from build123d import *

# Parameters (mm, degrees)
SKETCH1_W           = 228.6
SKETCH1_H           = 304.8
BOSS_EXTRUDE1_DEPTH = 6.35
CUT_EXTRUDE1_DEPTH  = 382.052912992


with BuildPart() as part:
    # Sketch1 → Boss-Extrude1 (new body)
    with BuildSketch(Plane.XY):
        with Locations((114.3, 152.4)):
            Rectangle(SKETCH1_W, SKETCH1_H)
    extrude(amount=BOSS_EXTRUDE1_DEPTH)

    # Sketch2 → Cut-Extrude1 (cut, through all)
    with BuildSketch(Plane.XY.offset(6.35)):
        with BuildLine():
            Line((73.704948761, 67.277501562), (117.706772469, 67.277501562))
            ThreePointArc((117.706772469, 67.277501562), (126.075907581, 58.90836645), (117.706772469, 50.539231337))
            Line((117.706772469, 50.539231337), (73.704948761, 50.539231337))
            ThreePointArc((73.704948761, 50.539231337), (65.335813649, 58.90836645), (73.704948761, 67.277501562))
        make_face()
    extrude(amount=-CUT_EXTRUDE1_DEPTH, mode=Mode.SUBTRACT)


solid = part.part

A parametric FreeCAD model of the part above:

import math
import FreeCAD as App
import Part
import Sketcher
from FreeCAD import Vector
Q = App.Units.Quantity


def add_polygon(sketch, points):
    """Adds a closed chain of lines whose ends are joined by coincident constraints."""
    first, n = sketch.GeometryCount, len(points)
    for a, b in zip(points, points[1:] + points[:1]):
        sketch.addGeometry(Part.LineSegment(App.Vector(*a, 0), App.Vector(*b, 0)), False)
    for i in range(n):
        sketch.addConstraint(Sketcher.Constraint("Coincident", first + i, 2, first + (i + 1) % n, 1))

doc = App.newDocument("Part")
body = doc.addObject("PartDesign::Body", "Body")

# Sketch on XY plane
sketch1 = body.newObject("Sketcher::SketchObject", "Sketch")
sketch1.AttachmentSupport = (doc.getObject("XY_Plane"), [""])
sketch1.MapMode = "FlatFace"
add_polygon(sketch1, [(0, 305), (0, 0), (229, 0), (229, 305)])  # lines 0-3
sketch1.addConstraint(Sketcher.Constraint("Vertical", 0))
sketch1.addConstraint(Sketcher.Constraint("Horizontal", 1))
sketch1.addConstraint(Sketcher.Constraint("Vertical", 2))
sketch1.addConstraint(Sketcher.Constraint("Horizontal", 3))
sketch1.addConstraint(Sketcher.Constraint("Coincident", 0, 2, -1, 1))
sketch1.addConstraint(Sketcher.Constraint("DistanceX", 1, 1, 1, 2, Q("9 in")))
sketch1.addConstraint(Sketcher.Constraint("DistanceY", 0, 2, 0, 1, Q("12 in")))
pad1 = body.newObject("PartDesign::Pad", "Pad")
pad1.Profile = sketch1
pad1.Length = Q("0.25 in")

# Sketch on XY plane
sketch2 = body.newObject("Sketcher::SketchObject", "Sketch001")
sketch2.AttachmentSupport = (doc.getObject("XY_Plane"), [""])
sketch2.MapMode = "FlatFace"
sketch2.AttachmentOffset = App.Placement(Vector(0, 0, 0.25 * 25.4), App.Rotation())
sketch2.addGeometry(Part.LineSegment(Vector(118, 67, 0), Vector(74, 67, 0)), False)
sketch2.addGeometry(Part.ArcOfCircle(Part.Circle(Vector(74, 59, 0), Vector(0, 0, 1), 8), math.radians(90), math.radians(270)), False)
sketch2.addGeometry(Part.LineSegment(Vector(74, 51, 0), Vector(118, 51, 0)), False)
sketch2.addGeometry(Part.ArcOfCircle(Part.Circle(Vector(118, 59, 0), Vector(0, 0, 1), 8), math.radians(-90), math.radians(90)), False)
sketch2.addConstraint(Sketcher.Constraint("Tangent", 0, 2, 1, 1))
sketch2.addConstraint(Sketcher.Constraint("Tangent", 1, 2, 2, 1))
sketch2.addConstraint(Sketcher.Constraint("Tangent", 2, 2, 3, 1))
sketch2.addConstraint(Sketcher.Constraint("Tangent", 3, 2, 0, 1))
sketch2.addConstraint(Sketcher.Constraint("Horizontal", 0))
sketch2.addConstraint(Sketcher.Constraint("Horizontal", 2))
sketch2.addConstraint(Sketcher.Constraint("Radius", 1, 8.369135))
sketch2.addConstraint(Sketcher.Constraint("DistanceY", -1, 1, 0, 2, 67.277502))
sketch2.addConstraint(Sketcher.Constraint("DistanceX", 0, 2, 0, 1, 44.001824))
sketch2.addConstraint(Sketcher.Constraint("DistanceX", -1, 1, 1, 3, 73.704949))
pocket1 = body.newObject("PartDesign::Pocket", "Pocket")
pocket1.Profile = sketch2
pocket1.Type = "ThroughAll"

doc.recompute()
